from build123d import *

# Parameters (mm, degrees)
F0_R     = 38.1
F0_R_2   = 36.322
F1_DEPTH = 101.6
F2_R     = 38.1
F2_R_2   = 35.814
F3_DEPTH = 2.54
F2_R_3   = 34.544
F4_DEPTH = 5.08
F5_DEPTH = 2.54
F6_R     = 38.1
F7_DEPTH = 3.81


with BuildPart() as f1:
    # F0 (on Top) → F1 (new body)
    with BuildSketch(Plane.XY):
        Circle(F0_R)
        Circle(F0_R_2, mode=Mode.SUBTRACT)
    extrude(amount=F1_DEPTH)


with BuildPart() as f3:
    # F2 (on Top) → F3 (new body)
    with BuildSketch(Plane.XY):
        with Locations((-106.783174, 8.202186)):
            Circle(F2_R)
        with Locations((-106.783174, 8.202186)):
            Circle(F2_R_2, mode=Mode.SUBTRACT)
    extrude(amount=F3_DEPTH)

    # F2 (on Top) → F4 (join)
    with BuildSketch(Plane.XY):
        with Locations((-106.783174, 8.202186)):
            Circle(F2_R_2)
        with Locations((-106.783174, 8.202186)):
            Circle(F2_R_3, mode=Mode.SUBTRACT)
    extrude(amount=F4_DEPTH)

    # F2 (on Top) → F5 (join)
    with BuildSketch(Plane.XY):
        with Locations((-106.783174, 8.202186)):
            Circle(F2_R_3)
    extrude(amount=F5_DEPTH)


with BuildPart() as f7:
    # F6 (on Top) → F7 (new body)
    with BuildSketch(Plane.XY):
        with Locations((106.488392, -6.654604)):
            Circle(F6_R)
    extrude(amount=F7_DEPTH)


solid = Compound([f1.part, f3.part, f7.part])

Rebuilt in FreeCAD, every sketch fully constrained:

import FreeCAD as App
import Part
import Sketcher
Q = App.Units.Quantity

doc = App.newDocument("Part")
params = doc.addObject("Spreadsheet::Sheet", "Params")
for row, (alias, value) in enumerate([
    ("sketch1_diameter", "3 in"),
    ("sketch1_diameter2", "2.86 in"),
    ("pad1_length", "4 in"),
    ("sketch2_diameter", "3 in"),
    ("sketch2_diameter2", "2.82 in"),
    ("pad2_length", "0.1 in"),
    ("sketch3_diameter", "2.82 in"),
    ("sketch3_diameter2", "2.72 in"),
    ("pad3_length", "0.2 in"),
    ("sketch4_diameter", "2.72 in"),
    ("pad4_length", "0.1 in"),
    ("sketch5_diameter", "3 in"),
    ("pad5_length", "0.15 in"),
], start=1):
    params.set(f"A{row}", alias)
    params.set(f"B{row}", "=" + value)
    params.setAlias(f"B{row}", alias)

body = doc.addObject("PartDesign::Body", "Body")

# Sketch on XY plane
sketch1 = body.newObject("Sketcher::SketchObject", "Sketch")
sketch1.AttachmentSupport = (doc.getObject("XY_Plane"), [""])
sketch1.MapMode = "FlatFace"
sketch1.addGeometry(Part.Circle(App.Vector(0, 0, 0), App.Vector(0, 0, 1), 38), False)
sketch1.addGeometry(Part.Circle(App.Vector(0, 0, 0), App.Vector(0, 0, 1), 36), False)
sketch1.addConstraint(Sketcher.Constraint("Coincident", 0, 3, -1, 1))
sketch1.addConstraint(Sketcher.Constraint("Coincident", 1, 3, -1, 1))
sketch1.addConstraint(Sketcher.Constraint("Diameter", 0, Q("3 in")))
sketch1.addConstraint(Sketcher.Constraint("Diameter", 1, Q("2.86 in")))
sketch1.setExpression("Constraints[2]", "Params.sketch1_diameter")
sketch1.setExpression("Constraints[3]", "Params.sketch1_diameter2")
pad1 = body.newObject("PartDesign::Pad", "Pad")
pad1.Profile = sketch1
pad1.setExpression("Length", "Params.pad1_length")
body2 = doc.addObject("PartDesign::Body", "Body001")

# Sketch on XY plane
sketch2 = body2.newObject("Sketcher::SketchObject", "Sketch001")
sketch2.AttachmentSupport = (doc.getObject("XY_Plane001"), [""])
sketch2.MapMode = "FlatFace"
sketch2.addGeometry(Part.Circle(App.Vector(-107, 8, 0), App.Vector(0, 0, 1), 38), False)
sketch2.addGeometry(Part.Circle(App.Vector(-107, 8, 0), App.Vector(0, 0, 1), 36), False)
sketch2.addConstraint(Sketcher.Constraint("Coincident", 1, 3, 0, 3))
sketch2.addConstraint(Sketcher.Constraint("Diameter", 0, Q("3 in")))
sketch2.addConstraint(Sketcher.Constraint("Diameter", 1, Q("2.82 in")))
sketch2.addConstraint(Sketcher.Constraint("DistanceX", 0, 3, -1, 1, 106.783174))
sketch2.addConstraint(Sketcher.Constraint("DistanceY", -1, 1, 0, 3, 8.202186))
sketch2.setExpression("Constraints[1]", "Params.sketch2_diameter")
sketch2.setExpression("Constraints[2]", "Params.sketch2_diameter2")
pad2 = body2.newObject("PartDesign::Pad", "Pad001")
pad2.Profile = sketch2
pad2.setExpression("Length", "Params.pad2_length")

# Sketch on XY plane
sketch3 = body2.newObject("Sketcher::SketchObject", "Sketch002")
sketch3.AttachmentSupport = (doc.getObject("XY_Plane001"), [""])
sketch3.MapMode = "FlatFace"
sketch3.addGeometry(Part.Circle(App.Vector(-107, 8, 0), App.Vector(0, 0, 1), 36), False)
sketch3.addGeometry(Part.Circle(App.Vector(-107, 8, 0), App.Vector(0, 0, 1), 35), False)
sketch3.addConstraint(Sketcher.Constraint("Coincident", 1, 3, 0, 3))
sketch3.addConstraint(Sketcher.Constraint("Diameter", 0, Q("2.82 in")))
sketch3.addConstraint(Sketcher.Constraint("Diameter", 1, Q("2.72 in")))
sketch3.addConstraint(Sketcher.Constraint("DistanceX", 0, 3, -1, 1, 106.783174))
sketch3.addConstraint(Sketcher.Constraint("DistanceY", -1, 1, 0, 3, 8.202186))
sketch3.setExpression("Constraints[1]", "Params.sketch3_diameter")
sketch3.setExpression("Constraints[2]", "Params.sketch3_diameter2")
pad3 = body2.newObject("PartDesign::Pad", "Pad002")
pad3.Profile = sketch3
pad3.setExpression("Length", "Params.pad3_length")

# Sketch on XY plane
sketch4 = body2.newObject("Sketcher::SketchObject", "Sketch003")
sketch4.AttachmentSupport = (doc.getObject("XY_Plane001"), [""])
sketch4.MapMode = "FlatFace"
sketch4.addGeometry(Part.Circle(App.Vector(-107, 8, 0), App.Vector(0, 0, 1), 35), False)
sketch4.addConstraint(Sketcher.Constraint("Diameter", 0, Q("2.72 in")))
sketch4.addConstraint(Sketcher.Constraint("DistanceX", 0, 3, -1, 1, 106.783174))
sketch4.addConstraint(Sketcher.Constraint("DistanceY", -1, 1, 0, 3, 8.202186))
sketch4.setExpression("Constraints[0]", "Params.sketch4_diameter")
pad4 = body2.newObject("PartDesign::Pad", "Pad003")
pad4.Profile = sketch4
pad4.setExpression("Length", "Params.pad4_length")
body3 = doc.addObject("PartDesign::Body", "Body002")

# Sketch on XY plane
sketch5 = body3.newObject("Sketcher::SketchObject", "Sketch004")
sketch5.AttachmentSupport = (doc.getObject("XY_Plane002"), [""])
sketch5.MapMode = "FlatFace"
sketch5.addGeometry(Part.Circle(App.Vector(106, -7, 0), App.Vector(0, 0, 1), 38), False)
sketch5.addConstraint(Sketcher.Constraint("Diameter", 0, Q("3 in")))
sketch5.addConstraint(Sketcher.Constraint("DistanceX", -1, 1, 0, 3, 106.488392))
sketch5.addConstraint(Sketcher.Constraint("DistanceY", 0, 3, -1, 1, 6.654604))
sketch5.setExpression("Constraints[0]", "Params.sketch5_diameter")
pad5 = body3.newObject("PartDesign::Pad", "Pad004")
pad5.Profile = sketch5
pad5.setExpression("Length", "Params.pad5_length")

doc.recompute()
